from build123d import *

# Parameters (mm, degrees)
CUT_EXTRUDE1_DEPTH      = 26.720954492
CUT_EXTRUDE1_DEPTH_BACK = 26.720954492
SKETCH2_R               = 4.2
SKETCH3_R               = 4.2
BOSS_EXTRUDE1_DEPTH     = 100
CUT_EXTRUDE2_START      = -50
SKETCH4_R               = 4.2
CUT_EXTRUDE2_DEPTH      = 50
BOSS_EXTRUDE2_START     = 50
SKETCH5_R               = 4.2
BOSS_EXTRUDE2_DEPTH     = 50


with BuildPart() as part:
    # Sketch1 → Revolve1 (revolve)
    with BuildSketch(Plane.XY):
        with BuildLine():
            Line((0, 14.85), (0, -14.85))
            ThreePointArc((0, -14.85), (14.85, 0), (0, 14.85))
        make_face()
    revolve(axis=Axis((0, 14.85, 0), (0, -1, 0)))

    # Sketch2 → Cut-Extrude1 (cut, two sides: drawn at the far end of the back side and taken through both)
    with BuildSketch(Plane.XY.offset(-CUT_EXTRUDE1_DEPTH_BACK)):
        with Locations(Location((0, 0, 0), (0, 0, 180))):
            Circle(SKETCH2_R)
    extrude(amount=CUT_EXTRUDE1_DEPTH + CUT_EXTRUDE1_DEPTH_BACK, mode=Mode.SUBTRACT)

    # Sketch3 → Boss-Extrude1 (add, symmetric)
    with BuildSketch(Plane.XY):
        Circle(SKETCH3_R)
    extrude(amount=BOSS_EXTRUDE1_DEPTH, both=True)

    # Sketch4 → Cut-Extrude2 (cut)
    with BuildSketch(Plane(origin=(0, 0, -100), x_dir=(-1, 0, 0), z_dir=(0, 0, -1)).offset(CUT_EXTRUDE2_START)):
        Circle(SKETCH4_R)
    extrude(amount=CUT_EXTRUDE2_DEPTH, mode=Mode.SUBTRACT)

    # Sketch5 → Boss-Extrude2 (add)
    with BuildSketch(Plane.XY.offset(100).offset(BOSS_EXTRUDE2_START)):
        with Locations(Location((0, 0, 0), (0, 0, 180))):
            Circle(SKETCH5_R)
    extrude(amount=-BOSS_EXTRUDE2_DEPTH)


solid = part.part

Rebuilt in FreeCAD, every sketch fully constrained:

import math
import FreeCAD as App
import Part
import Sketcher

doc = App.newDocument("Part")
body = doc.addObject("PartDesign::Body", "Body")

sketch1 = body.newObject("Sketcher::SketchObject", "Sketch")
sketch1.AttachmentSupport = (doc.getObject("XY_Plane"), [""])
sketch1.MapMode = "FlatFace"
sketch1.addGeometry(Part.LineSegment(App.Vector(0, 15, 0), App.Vector(0, -15, 0)), False)
sketch1.addGeometry(Part.ArcOfCircle(Part.Circle(App.Vector(0, 0, 0), App.Vector(0, 0, 1), 15), math.radians(-90), math.radians(90)), False)
sketch1.addConstraint(Sketcher.Constraint("Coincident", 0, 1, 1, 2))
sketch1.addConstraint(Sketcher.Constraint("Coincident", 1, 1, 0, 2))
sketch1.addConstraint(Sketcher.Constraint("Vertical", 0))
sketch1.addConstraint(Sketcher.Constraint("Coincident", 1, 3, -1, 1))
sketch1.addConstraint(Sketcher.Constraint("PointOnObject", 0, 1, -2))
sketch1.addConstraint(Sketcher.Constraint("Radius", 1, 14.85))
revolution = body.newObject("PartDesign::Revolution", "Revolution")
revolution.Profile = sketch1
revolution.ReferenceAxis = (sketch1, ["V_Axis"])
revolution.Angle = 360

sketch2 = body.newObject("Sketcher::SketchObject", "Sketch001")
sketch2.AttachmentSupport = (doc.getObject("XY_Plane"), [""])
sketch2.MapMode = "FlatFace"
sketch2.addGeometry(Part.Circle(App.Vector(0, 0, 0), App.Vector(0, 0, 1), 4.2), False)
sketch2.addConstraint(Sketcher.Constraint("Coincident", 0, 3, -1, 1))
sketch2.addConstraint(Sketcher.Constraint("Diameter", 0, 8.4))
pocket1 = body.newObject("PartDesign::Pocket", "Pocket")
pocket1.Profile = sketch2
pocket1.Type = "ThroughAll"
pocket1.Midplane = True

sketch3 = body.newObject("Sketcher::SketchObject", "Sketch002")
sketch3.AttachmentSupport = (doc.getObject("XY_Plane"), [""])
sketch3.MapMode = "FlatFace"
sketch3.addGeometry(Part.Circle(App.Vector(0, 0, 0), App.Vector(0, 0, 1), 4.2), False)
sketch3.addConstraint(Sketcher.Constraint("Coincident", 0, 3, -1, 1))
sketch3.addConstraint(Sketcher.Constraint("Diameter", 0, 8.4))
pad1 = body.newObject("PartDesign::Pad", "Pad")
pad1.Profile = sketch3
pad1.Length = 200
pad1.Midplane = True

sketch4 = body.newObject("Sketcher::SketchObject", "Sketch003")
sketch4.AttachmentSupport = (doc.getObject("XY_Plane"), [""])
sketch4.MapMode = "FlatFace"
sketch4.AttachmentOffset = App.Placement(App.Vector(0, 0, -50), App.Rotation())
sketch4.addGeometry(Part.Circle(App.Vector(0, 0, 0), App.Vector(0, 0, 1), 4.2), False)
sketch4.addConstraint(Sketcher.Constraint("Coincident", 0, 3, -1, 1))
sketch4.addConstraint(Sketcher.Constraint("Diameter", 0, 8.4))
pocket2 = body.newObject("PartDesign::Pocket", "Pocket001")
pocket2.Profile = sketch4
pocket2.Length = 50

sketch5 = body.newObject("Sketcher::SketchObject", "Sketch004")
sketch5.AttachmentSupport = (doc.getObject("XY_Plane"), [""])
sketch5.MapMode = "FlatFace"
sketch5.AttachmentOffset = App.Placement(App.Vector(0, 0, 150), App.Rotation())
sketch5.addGeometry(Part.Circle(App.Vector(0, 0, 0), App.Vector(0, 0, 1), 4.2), False)
sketch5.addConstraint(Sketcher.Constraint("Coincident", 0, 3, -1, 1))
sketch5.addConstraint(Sketcher.Constraint("Diameter", 0, 8.4))
pad2 = body.newObject("PartDesign::Pad", "Pad001")
pad2.Profile = sketch5
pad2.Length = 50
pad2.Reversed = True

doc.recompute()
